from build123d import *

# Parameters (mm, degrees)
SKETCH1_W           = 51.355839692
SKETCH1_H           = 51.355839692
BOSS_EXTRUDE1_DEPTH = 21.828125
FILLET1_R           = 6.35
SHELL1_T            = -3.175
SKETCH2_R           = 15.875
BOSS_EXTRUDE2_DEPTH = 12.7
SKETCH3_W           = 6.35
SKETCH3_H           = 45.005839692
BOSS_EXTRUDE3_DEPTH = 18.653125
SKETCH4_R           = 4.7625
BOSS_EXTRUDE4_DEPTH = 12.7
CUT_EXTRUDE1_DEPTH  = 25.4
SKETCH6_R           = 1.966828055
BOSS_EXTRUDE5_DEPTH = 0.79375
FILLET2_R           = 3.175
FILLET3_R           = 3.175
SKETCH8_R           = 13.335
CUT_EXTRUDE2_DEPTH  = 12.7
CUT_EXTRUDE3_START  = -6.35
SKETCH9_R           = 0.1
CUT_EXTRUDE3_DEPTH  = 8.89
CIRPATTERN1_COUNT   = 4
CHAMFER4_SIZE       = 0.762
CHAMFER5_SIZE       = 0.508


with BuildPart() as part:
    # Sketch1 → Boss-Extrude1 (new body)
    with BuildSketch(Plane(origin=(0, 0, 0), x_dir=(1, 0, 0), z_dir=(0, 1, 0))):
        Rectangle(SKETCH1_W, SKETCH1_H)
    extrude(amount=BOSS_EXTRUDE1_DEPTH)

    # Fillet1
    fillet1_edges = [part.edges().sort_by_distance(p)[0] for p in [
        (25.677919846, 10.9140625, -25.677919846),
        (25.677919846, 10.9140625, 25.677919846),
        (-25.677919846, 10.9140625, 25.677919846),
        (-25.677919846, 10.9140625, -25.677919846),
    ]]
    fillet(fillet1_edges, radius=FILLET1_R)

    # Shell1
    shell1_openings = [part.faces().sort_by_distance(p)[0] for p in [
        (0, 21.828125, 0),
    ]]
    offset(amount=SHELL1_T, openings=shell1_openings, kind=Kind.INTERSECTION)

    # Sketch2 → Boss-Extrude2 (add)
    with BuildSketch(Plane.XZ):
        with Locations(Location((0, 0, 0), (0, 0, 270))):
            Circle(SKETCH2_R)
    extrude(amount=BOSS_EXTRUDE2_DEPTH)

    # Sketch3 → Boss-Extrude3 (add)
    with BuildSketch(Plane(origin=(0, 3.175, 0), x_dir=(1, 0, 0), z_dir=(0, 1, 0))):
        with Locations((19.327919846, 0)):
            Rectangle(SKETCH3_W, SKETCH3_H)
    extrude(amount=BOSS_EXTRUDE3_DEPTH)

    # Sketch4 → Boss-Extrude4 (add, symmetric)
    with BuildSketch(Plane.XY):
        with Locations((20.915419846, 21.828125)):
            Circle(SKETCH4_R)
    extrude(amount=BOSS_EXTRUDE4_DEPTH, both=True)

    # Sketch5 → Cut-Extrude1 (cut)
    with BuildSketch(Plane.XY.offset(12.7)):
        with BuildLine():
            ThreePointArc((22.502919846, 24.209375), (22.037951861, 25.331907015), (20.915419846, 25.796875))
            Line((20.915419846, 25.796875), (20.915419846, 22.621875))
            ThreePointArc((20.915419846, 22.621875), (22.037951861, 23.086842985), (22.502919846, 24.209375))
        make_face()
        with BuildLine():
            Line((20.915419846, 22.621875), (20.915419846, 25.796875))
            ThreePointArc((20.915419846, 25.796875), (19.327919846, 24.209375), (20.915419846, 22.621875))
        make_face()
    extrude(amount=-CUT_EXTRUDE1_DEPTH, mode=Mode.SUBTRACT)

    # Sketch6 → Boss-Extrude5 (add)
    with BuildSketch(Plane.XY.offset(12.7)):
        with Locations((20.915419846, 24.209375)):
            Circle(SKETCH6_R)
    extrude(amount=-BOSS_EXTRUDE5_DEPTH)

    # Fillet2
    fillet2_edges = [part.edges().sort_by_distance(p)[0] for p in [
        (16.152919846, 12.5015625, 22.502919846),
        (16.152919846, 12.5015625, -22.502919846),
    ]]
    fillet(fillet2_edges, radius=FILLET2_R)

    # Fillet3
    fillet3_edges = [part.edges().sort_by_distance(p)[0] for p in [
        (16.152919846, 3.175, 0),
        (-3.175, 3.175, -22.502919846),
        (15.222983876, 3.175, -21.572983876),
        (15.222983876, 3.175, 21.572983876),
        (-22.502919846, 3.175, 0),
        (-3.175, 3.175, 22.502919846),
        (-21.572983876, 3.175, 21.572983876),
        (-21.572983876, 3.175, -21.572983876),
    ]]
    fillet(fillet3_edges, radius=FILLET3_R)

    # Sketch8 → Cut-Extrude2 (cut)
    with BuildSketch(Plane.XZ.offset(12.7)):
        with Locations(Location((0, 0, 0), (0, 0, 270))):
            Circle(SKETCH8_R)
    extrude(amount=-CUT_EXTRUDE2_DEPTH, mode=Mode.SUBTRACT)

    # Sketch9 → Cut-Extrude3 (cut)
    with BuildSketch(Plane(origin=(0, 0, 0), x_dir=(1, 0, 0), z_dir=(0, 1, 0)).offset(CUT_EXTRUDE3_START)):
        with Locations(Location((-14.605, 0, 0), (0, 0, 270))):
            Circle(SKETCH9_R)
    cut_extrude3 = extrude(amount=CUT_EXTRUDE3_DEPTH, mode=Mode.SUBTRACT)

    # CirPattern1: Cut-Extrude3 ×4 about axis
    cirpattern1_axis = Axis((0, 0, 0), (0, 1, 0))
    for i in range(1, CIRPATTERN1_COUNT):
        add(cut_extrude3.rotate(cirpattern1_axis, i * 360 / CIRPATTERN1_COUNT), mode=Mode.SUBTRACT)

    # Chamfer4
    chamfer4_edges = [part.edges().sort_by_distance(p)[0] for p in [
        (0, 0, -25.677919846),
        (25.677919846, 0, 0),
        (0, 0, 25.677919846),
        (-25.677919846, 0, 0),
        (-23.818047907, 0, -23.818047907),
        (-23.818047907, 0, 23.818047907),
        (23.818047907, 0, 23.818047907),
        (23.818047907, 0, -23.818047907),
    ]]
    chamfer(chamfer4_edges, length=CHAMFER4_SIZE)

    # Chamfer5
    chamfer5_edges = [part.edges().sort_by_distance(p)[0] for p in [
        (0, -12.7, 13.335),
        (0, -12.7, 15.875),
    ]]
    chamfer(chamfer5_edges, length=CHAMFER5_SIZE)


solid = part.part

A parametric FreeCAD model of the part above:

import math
import FreeCAD as App
import Part
import Sketcher

V = App.Vector
Q = App.Units.Quantity


def edges_at(feature, points):
    """Names of the edges that pass closest to the given points."""
    edges = feature.Shape.Edges
    near = lambda p: min(range(len(edges)), key=lambda i: edges[i].distToShape(Part.Vertex(*p))[0])
    return sorted({f"Edge{near(p) + 1}" for p in points})


def faces_at(feature, points):
    """Names of the faces that lie closest to the given points."""
    faces = feature.Shape.Faces
    near = lambda p: min(range(len(faces)), key=lambda i: faces[i].distToShape(Part.Vertex(*p))[0])
    return sorted({f"Face{near(p) + 1}" for p in points})

doc = App.newDocument("Part")
body = doc.addObject("PartDesign::Body", "Body")

sketch1 = body.newObject("Sketcher::SketchObject", "Sketch")
sketch1.AttachmentSupport = (doc.getObject("XZ_Plane"), [""])
sketch1.MapMode = "FlatFace"
sketch1.addGeometry([
    Part.LineSegment(V(-26, -26, 0), V(-26, 26, 0)),
    Part.LineSegment(V(-26, 26, 0), V(26, 26, 0)),
    Part.LineSegment(V(26, 26, 0), V(26, -26, 0)),
    Part.LineSegment(V(26, -26, 0), V(-26, -26, 0)),
], False)
sketch1.addConstraint([
    Sketcher.Constraint("Coincident", 0, 2, 1, 1),
    Sketcher.Constraint("Coincident", 1, 2, 2, 1),
    Sketcher.Constraint("Coincident", 2, 2, 3, 1),
    Sketcher.Constraint("Coincident", 3, 2, 0, 1),
    Sketcher.Constraint("Vertical", 0),
    Sketcher.Constraint("Horizontal", 1),
    Sketcher.Constraint("Vertical", 2),
    Sketcher.Constraint("Horizontal", 3),
    Sketcher.Constraint("Symmetric", 0, 2, 2, 2, -1, 1),
    Sketcher.Constraint("Equal", 3, 0),
    Sketcher.Constraint("DistanceX", 1, 1, 1, 2, Q("51.35584 mm")),
])
pad1 = body.newObject("PartDesign::Pad", "Pad")
pad1.Profile = sketch1
pad1.Length = Q("0.859375 in")
pad1.Reversed = True
doc.recompute()

fillet = body.newObject("PartDesign::Fillet", "Fillet")
fillet.Base = (pad1, edges_at(pad1, [
    (25.678, 10.914, -25.678),
    (25.678, 10.914, 25.678),
    (-25.678, 10.914, 25.678),
    (-25.678, 10.914, -25.678),
]))
fillet.Radius = Q("0.25 in")
doc.recompute()

thickness = body.newObject("PartDesign::Thickness", "Thickness")
thickness.Base = (fillet, faces_at(fillet, [(0, 21.828, 0)]))
thickness.Value = Q("0.125 in")
thickness.Reversed = True
thickness.Join = "Intersection"

sketch2 = body.newObject("Sketcher::SketchObject", "Sketch001")
sketch2.AttachmentSupport = (doc.getObject("XZ_Plane"), [""])
sketch2.MapMode = "FlatFace"
sketch2.addGeometry(Part.Circle(V(0, 0, 0), V(0, 0, 1), 16), False)
sketch2.addConstraint([
    Sketcher.Constraint("Coincident", 0, 3, -1, 1),
    Sketcher.Constraint("Diameter", 0, Q("1.25 in")),
])
pad2 = body.newObject("PartDesign::Pad", "Pad001")
pad2.Profile = sketch2
pad2.Length = Q("0.5 in")

sketch3 = body.newObject("Sketcher::SketchObject", "Sketch002")
sketch3.AttachmentSupport = (doc.getObject("XZ_Plane"), [""])
sketch3.MapMode = "FlatFace"
sketch3.AttachmentOffset = App.Placement(V(0, 0, -0.125 * 25.4), App.Rotation())
sketch3.addGeometry([
    Part.LineSegment(V(16, -23, 0), V(16, 23, 0)),
    Part.LineSegment(V(16, 23, 0), V(23, 23, 0)),
    Part.LineSegment(V(23, 23, 0), V(23, -23, 0)),
    Part.LineSegment(V(23, -23, 0), V(16, -23, 0)),
], False)
sketch3.addConstraint([
    Sketcher.Constraint("Coincident", 0, 2, 1, 1),
    Sketcher.Constraint("Coincident", 1, 2, 2, 1),
    Sketcher.Constraint("Coincident", 2, 2, 3, 1),
    Sketcher.Constraint("Coincident", 3, 2, 0, 1),
    Sketcher.Constraint("Vertical", 0),
    Sketcher.Constraint("Horizontal", 1),
    Sketcher.Constraint("Vertical", 2),
    Sketcher.Constraint("Horizontal", 3),
    Sketcher.Constraint("DistanceX", 1, 1, 1, 2, Q("0.25 in")),
    Sketcher.Constraint("DistanceY", 0, 1, 0, 2, Q("45.00584 mm")),
    Sketcher.Constraint("DistanceX", -1, 1, 0, 2, Q("16.15292 mm")),
    Sketcher.Constraint("DistanceY", -1, 1, 0, 2, Q("22.50292 mm")),
])
pad3 = body.newObject("PartDesign::Pad", "Pad002")
pad3.Profile = sketch3
pad3.Length = Q("0.734375 in")
pad3.Reversed = True

sketch4 = body.newObject("Sketcher::SketchObject", "Sketch003")
sketch4.AttachmentSupport = (doc.getObject("XY_Plane"), [""])
sketch4.MapMode = "FlatFace"
sketch4.addGeometry(Part.Circle(V(20.9, 21.8, 0), V(0, 0, 1), 4.8), False)
sketch4.addConstraint([
    Sketcher.Constraint("Diameter", 0, Q("0.375 in")),
    Sketcher.Constraint("DistanceY", -1, 1, 0, 3, Q("0.859375 in")),
    Sketcher.Constraint("DistanceX", -1, 1, 0, 3, Q("20.91542 mm")),
])
pad4 = body.newObject("PartDesign::Pad", "Pad003")
pad4.Profile = sketch4
pad4.Length = Q("1 in")
pad4.Midplane = True

sketch5 = body.newObject("Sketcher::SketchObject", "Sketch004")
sketch5.AttachmentSupport = (doc.getObject("XY_Plane"), [""])
sketch5.MapMode = "FlatFace"
sketch5.AttachmentOffset = App.Placement(V(0, 0, 0.5 * 25.4), App.Rotation())
sketch5.addGeometry([
    Part.ArcOfCircle(Part.Circle(V(20.9, 24.2, 0), V(0, 0, 1), 1.6), math.radians(0), math.radians(90)),
    Part.ArcOfCircle(Part.Circle(V(20.9, 24.2, 0), V(0, 0, 1), 1.6), math.radians(90), math.radians(270)),
    Part.ArcOfCircle(Part.Circle(V(20.9, 24.2, 0), V(0, 0, 1), 1.6), math.radians(-90), math.radians(0)),
], False)
sketch5.addConstraint([
    Sketcher.Constraint("Tangent", 0, 2, 1, 1),
    Sketcher.Constraint("Tangent", 1, 2, 2, 1),
    Sketcher.Constraint("Tangent", 2, 2, 0, 1),
    Sketcher.Constraint("Horizontal", 1, 3, 2, 2),
    Sketcher.Constraint("Vertical", 2, 3, 0, 2),
    Sketcher.Constraint("Vertical", 0, 2, 1, 2),
    Sketcher.Constraint("Radius", 0, Q("0.0625 in")),
    Sketcher.Constraint("DistanceY", -1, 1, 0, 3, Q("0.953125 in")),
    Sketcher.Constraint("DistanceX", -1, 1, 0, 3, Q("20.91542 mm")),
])
pocket1 = body.newObject("PartDesign::Pocket", "Pocket")
pocket1.Profile = sketch5
pocket1.Length = Q("1 in")

sketch6 = body.newObject("Sketcher::SketchObject", "Sketch005")
sketch6.AttachmentSupport = (doc.getObject("XY_Plane"), [""])
sketch6.MapMode = "FlatFace"
sketch6.AttachmentOffset = App.Placement(V(0, 0, 0.5 * 25.4), App.Rotation())
sketch6.addGeometry(Part.Circle(V(20.9, 24.2, 0), V(0, 0, 1), 2), False)
sketch6.addConstraint([
    Sketcher.Constraint("DistanceY", -1, 1, 0, 3, Q("0.953125 in")),
    Sketcher.Constraint("Diameter", 0, Q("3.933656 mm")),
    Sketcher.Constraint("DistanceX", -1, 1, 0, 3, Q("20.91542 mm")),
])
pad5 = body.newObject("PartDesign::Pad", "Pad004")
pad5.Profile = sketch6
pad5.Length = Q("0.03125 in")
pad5.Reversed = True
doc.recompute()

fillet2 = body.newObject("PartDesign::Fillet", "Fillet001")
fillet2.Base = (pad5, edges_at(pad5, [(16.153, 12.502, 22.503), (16.153, 12.502, -22.503)]))
fillet2.Radius = Q("0.125 in")
doc.recompute()

fillet3 = body.newObject("PartDesign::Fillet", "Fillet002")
fillet3.Base = (fillet2, edges_at(fillet2, [
    (16.153, 3.175, 0),
    (-3.175, 3.175, -22.503),
    (15.223, 3.175, -21.573),
    (15.223, 3.175, 21.573),
    (-22.503, 3.175, 0),
    (-3.175, 3.175, 22.503),
    (-21.573, 3.175, 21.573),
    (-21.573, 3.175, -21.573),
]))
fillet3.Radius = Q("0.125 in")

sketch7 = body.newObject("Sketcher::SketchObject", "Sketch006")
sketch7.AttachmentSupport = (doc.getObject("XZ_Plane"), [""])
sketch7.MapMode = "FlatFace"
sketch7.AttachmentOffset = App.Placement(V(0, 0, 0.5 * 25.4), App.Rotation())
sketch7.addGeometry(Part.Circle(V(0, 0, 0), V(0, 0, 1), 13), False)
sketch7.addConstraint([
    Sketcher.Constraint("Coincident", 0, 3, -1, 1),
    Sketcher.Constraint("Diameter", 0, Q("1.05 in")),
])
pocket2 = body.newObject("PartDesign::Pocket", "Pocket001")
pocket2.Profile = sketch7
pocket2.Length = Q("0.5 in")

sketch8 = body.newObject("Sketcher::SketchObject", "Sketch007")
sketch8.AttachmentSupport = (doc.getObject("XZ_Plane"), [""])
sketch8.MapMode = "FlatFace"
sketch8.AttachmentOffset = App.Placement(V(0, 0, 0.25 * 25.4), App.Rotation())
sketch8.addGeometry(Part.Circle(V(-14.61, 0, 0), V(0, 0, 1), 0.1), False)
sketch8.addConstraint([
    Sketcher.Constraint("PointOnObject", 0, 3, -1),
    Sketcher.Constraint("Diameter", 0, Q("0.2 mm")),
    Sketcher.Constraint("DistanceX", 0, 3, -1, 1, Q("0.575 in")),
])
pocket3 = body.newObject("PartDesign::Pocket", "Pocket002")
pocket3.Profile = sketch8
pocket3.Length = Q("0.35 in")
doc.recompute()

polarpattern = body.newObject("PartDesign::PolarPattern", "PolarPattern")
polarpattern.Originals = [pocket3]
polarpattern.Axis = (doc.getObject("Y_Axis"), [""])
polarpattern.Angle = 360
polarpattern.Occurrences = 4
body.Tip = polarpattern
doc.recompute()

chamfer = body.newObject("PartDesign::Chamfer", "Chamfer")
chamfer.Base = (polarpattern, edges_at(polarpattern, [
    (0, 0, -25.678),
    (25.678, 0, 0),
    (0, 0, 25.678),
    (-25.678, 0, 0),
    (-23.818, 0, -23.818),
    (-23.818, 0, 23.818),
    (23.818, 0, 23.818),
    (23.818, 0, -23.818),
]))
chamfer.Size = Q("0.03 in")
doc.recompute()

chamfer2 = body.newObject("PartDesign::Chamfer", "Chamfer001")
chamfer2.Base = (chamfer, edges_at(chamfer, [(0, -12.7, 13.335), (0, -12.7, 15.875)]))
chamfer2.Size = Q("0.02 in")

doc.recompute()
